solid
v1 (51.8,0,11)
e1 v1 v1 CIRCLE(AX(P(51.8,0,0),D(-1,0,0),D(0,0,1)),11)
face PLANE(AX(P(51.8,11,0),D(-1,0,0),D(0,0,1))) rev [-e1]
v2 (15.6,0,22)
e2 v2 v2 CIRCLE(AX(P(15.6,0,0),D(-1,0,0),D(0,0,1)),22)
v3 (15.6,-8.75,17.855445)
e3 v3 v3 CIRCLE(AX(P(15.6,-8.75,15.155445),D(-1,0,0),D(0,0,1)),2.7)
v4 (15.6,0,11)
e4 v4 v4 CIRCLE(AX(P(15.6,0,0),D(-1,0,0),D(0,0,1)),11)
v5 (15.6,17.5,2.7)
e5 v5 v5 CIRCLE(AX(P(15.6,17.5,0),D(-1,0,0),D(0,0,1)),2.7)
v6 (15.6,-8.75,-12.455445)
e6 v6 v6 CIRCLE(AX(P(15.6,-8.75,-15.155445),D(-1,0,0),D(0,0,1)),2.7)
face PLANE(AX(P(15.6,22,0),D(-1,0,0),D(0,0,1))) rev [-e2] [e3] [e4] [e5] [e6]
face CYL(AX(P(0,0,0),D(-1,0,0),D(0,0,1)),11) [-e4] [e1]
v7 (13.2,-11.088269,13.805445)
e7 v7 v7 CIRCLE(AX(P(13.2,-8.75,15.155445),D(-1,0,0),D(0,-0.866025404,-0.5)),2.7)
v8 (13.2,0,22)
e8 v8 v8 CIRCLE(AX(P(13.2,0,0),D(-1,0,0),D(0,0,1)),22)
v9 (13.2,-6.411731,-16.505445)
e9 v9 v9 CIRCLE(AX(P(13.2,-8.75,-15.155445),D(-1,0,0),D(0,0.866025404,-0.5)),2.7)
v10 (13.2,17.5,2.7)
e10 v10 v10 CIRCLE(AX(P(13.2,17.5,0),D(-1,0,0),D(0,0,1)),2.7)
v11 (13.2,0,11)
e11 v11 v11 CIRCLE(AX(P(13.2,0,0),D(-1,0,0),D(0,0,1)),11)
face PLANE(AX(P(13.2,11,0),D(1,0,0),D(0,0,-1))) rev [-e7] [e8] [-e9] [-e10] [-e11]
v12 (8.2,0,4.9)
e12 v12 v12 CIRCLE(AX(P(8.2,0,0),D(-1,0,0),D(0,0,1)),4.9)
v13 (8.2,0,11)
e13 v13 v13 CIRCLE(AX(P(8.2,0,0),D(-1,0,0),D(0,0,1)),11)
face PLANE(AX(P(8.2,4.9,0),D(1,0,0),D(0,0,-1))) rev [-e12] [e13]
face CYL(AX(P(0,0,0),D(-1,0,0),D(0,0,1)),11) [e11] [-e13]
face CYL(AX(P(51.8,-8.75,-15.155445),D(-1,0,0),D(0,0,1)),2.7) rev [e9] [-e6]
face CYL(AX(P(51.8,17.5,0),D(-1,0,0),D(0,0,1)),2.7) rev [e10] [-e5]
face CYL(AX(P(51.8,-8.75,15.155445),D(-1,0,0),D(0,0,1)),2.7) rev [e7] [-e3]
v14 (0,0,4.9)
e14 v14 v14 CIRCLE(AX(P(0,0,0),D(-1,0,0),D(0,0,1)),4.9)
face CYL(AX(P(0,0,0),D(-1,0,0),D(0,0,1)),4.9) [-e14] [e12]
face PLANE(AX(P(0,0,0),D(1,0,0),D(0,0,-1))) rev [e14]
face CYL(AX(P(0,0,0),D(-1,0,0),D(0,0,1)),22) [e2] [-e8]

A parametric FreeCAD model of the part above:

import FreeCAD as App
import Part
import Sketcher

doc = App.newDocument("Part")
body = doc.addObject("PartDesign::Body", "Body")

sketch1 = doc.addObject("Sketcher::SketchObject", "Sketch")
body.addObject(sketch1)
sketch1.AttachmentSupport = (doc.XY_Plane, [""])
sketch1.MapMode = "FlatFace"
sketch1.addGeometry(Part.LineSegment(App.Vector(0, 4.9, 0), App.Vector(0, 0, 0)), False)
sketch1.addGeometry(Part.LineSegment(App.Vector(0, 0, 0), App.Vector(51.8, 0, 0)), False)
sketch1.addGeometry(Part.LineSegment(App.Vector(51.8, 0, 0), App.Vector(51.8, 11, 0)), False)
sketch1.addGeometry(Part.LineSegment(App.Vector(51.8, 11, 0), App.Vector(15.6, 11, 0)), False)
sketch1.addGeometry(Part.LineSegment(App.Vector(15.6, 11, 0), App.Vector(15.6, 22, 0)), False)
sketch1.addGeometry(Part.LineSegment(App.Vector(15.6, 22, 0), App.Vector(13.2, 22, 0)), False)
sketch1.addGeometry(Part.LineSegment(App.Vector(13.2, 22, 0), App.Vector(13.2, 11, 0)), False)
sketch1.addGeometry(Part.LineSegment(App.Vector(13.2, 11, 0), App.Vector(8.2, 11, 0)), False)
sketch1.addGeometry(Part.LineSegment(App.Vector(8.2, 11, 0), App.Vector(8.2, 4.9, 0)), False)
sketch1.addGeometry(Part.LineSegment(App.Vector(8.2, 4.9, 0), App.Vector(0, 4.9, 0)), False)
sketch1.addConstraint(Sketcher.Constraint("Coincident", 0, 2, 1, 1))
sketch1.addConstraint(Sketcher.Constraint("Coincident", 1, 2, 2, 1))
sketch1.addConstraint(Sketcher.Constraint("Coincident", 2, 2, 3, 1))
sketch1.addConstraint(Sketcher.Constraint("Coincident", 3, 2, 4, 1))
sketch1.addConstraint(Sketcher.Constraint("Coincident", 4, 2, 5, 1))
sketch1.addConstraint(Sketcher.Constraint("Coincident", 5, 2, 6, 1))
sketch1.addConstraint(Sketcher.Constraint("Coincident", 6, 2, 7, 1))
sketch1.addConstraint(Sketcher.Constraint("Coincident", 7, 2, 8, 1))
sketch1.addConstraint(Sketcher.Constraint("Coincident", 8, 2, 9, 1))
sketch1.addConstraint(Sketcher.Constraint("Coincident", 9, 2, 0, 1))
sketch1.addConstraint(Sketcher.Constraint("Vertical", 0))
sketch1.addConstraint(Sketcher.Constraint("Horizontal", 1))
sketch1.addConstraint(Sketcher.Constraint("Vertical", 2))
sketch1.addConstraint(Sketcher.Constraint("Horizontal", 3))
sketch1.addConstraint(Sketcher.Constraint("Vertical", 4))
sketch1.addConstraint(Sketcher.Constraint("Horizontal", 5))
sketch1.addConstraint(Sketcher.Constraint("Vertical", 6))
sketch1.addConstraint(Sketcher.Constraint("Horizontal", 7))
sketch1.addConstraint(Sketcher.Constraint("Vertical", 8))
sketch1.addConstraint(Sketcher.Constraint("Horizontal", 9))
sketch1.addConstraint(Sketcher.Constraint("Coincident", 0, 2, -1, 1))
sketch1.addConstraint(Sketcher.Constraint("Horizontal", 3, 2, 6, 2))
sketch1.addConstraint(Sketcher.Constraint("Equal", 2, 4))
sketch1.addConstraint(Sketcher.Constraint("DistanceX", 7, 2, 7, 1, 5.0))
sketch1.addConstraint(Sketcher.Constraint("DistanceY", 2, 1, 2, 2, 11.0))
sketch1.addConstraint(Sketcher.Constraint("DistanceX", 1, 1, 1, 2, 51.8))
sketch1.addConstraint(Sketcher.Constraint("DistanceX", 3, 2, 3, 1, 36.2))
sketch1.addConstraint(Sketcher.Constraint("DistanceX", 5, 2, 5, 1, 2.4))
sketch1.addConstraint(Sketcher.Constraint("DistanceY", 0, 2, 0, 1, 4.9))
revolution = doc.addObject("PartDesign::Revolution", "Revolution")
body.addObject(revolution)
revolution.Profile = sketch1
revolution.ReferenceAxis = (sketch1, ["H_Axis"])
revolution.Angle = 360

sketch2 = doc.addObject("Sketcher::SketchObject", "Sketch001")
body.addObject(sketch2)
sketch2.AttachmentSupport = (doc.YZ_Plane, [""])
sketch2.MapMode = "FlatFace"
sketch2.AttachmentOffset = App.Placement(App.Vector(0, 0, 13.2), App.Rotation())
sketch2.addGeometry(Part.Circle(App.Vector(17.5, 0, 0), App.Vector(0, 0, 1), 2.7), False)
sketch2.addConstraint(Sketcher.Constraint("PointOnObject", 0, 3, -1))
sketch2.addConstraint(Sketcher.Constraint("Diameter", 0, 5.4))
sketch2.addConstraint(Sketcher.Constraint("DistanceX", -1, 1, 0, 3, 17.5))
pocket1 = doc.addObject("PartDesign::Pocket", "Pocket")
body.addObject(pocket1)
pocket1.Profile = sketch2
pocket1.Length = 101.155635
pocket1.Midplane = True
doc.recompute()

polarpattern = doc.addObject("PartDesign::PolarPattern", "PolarPattern")
body.addObject(polarpattern)
polarpattern.Originals = [pocket1]
polarpattern.Axis = (doc.X_Axis, [""])
polarpattern.Angle = 360
polarpattern.Occurrences = 3
body.Tip = polarpattern

doc.recompute()
